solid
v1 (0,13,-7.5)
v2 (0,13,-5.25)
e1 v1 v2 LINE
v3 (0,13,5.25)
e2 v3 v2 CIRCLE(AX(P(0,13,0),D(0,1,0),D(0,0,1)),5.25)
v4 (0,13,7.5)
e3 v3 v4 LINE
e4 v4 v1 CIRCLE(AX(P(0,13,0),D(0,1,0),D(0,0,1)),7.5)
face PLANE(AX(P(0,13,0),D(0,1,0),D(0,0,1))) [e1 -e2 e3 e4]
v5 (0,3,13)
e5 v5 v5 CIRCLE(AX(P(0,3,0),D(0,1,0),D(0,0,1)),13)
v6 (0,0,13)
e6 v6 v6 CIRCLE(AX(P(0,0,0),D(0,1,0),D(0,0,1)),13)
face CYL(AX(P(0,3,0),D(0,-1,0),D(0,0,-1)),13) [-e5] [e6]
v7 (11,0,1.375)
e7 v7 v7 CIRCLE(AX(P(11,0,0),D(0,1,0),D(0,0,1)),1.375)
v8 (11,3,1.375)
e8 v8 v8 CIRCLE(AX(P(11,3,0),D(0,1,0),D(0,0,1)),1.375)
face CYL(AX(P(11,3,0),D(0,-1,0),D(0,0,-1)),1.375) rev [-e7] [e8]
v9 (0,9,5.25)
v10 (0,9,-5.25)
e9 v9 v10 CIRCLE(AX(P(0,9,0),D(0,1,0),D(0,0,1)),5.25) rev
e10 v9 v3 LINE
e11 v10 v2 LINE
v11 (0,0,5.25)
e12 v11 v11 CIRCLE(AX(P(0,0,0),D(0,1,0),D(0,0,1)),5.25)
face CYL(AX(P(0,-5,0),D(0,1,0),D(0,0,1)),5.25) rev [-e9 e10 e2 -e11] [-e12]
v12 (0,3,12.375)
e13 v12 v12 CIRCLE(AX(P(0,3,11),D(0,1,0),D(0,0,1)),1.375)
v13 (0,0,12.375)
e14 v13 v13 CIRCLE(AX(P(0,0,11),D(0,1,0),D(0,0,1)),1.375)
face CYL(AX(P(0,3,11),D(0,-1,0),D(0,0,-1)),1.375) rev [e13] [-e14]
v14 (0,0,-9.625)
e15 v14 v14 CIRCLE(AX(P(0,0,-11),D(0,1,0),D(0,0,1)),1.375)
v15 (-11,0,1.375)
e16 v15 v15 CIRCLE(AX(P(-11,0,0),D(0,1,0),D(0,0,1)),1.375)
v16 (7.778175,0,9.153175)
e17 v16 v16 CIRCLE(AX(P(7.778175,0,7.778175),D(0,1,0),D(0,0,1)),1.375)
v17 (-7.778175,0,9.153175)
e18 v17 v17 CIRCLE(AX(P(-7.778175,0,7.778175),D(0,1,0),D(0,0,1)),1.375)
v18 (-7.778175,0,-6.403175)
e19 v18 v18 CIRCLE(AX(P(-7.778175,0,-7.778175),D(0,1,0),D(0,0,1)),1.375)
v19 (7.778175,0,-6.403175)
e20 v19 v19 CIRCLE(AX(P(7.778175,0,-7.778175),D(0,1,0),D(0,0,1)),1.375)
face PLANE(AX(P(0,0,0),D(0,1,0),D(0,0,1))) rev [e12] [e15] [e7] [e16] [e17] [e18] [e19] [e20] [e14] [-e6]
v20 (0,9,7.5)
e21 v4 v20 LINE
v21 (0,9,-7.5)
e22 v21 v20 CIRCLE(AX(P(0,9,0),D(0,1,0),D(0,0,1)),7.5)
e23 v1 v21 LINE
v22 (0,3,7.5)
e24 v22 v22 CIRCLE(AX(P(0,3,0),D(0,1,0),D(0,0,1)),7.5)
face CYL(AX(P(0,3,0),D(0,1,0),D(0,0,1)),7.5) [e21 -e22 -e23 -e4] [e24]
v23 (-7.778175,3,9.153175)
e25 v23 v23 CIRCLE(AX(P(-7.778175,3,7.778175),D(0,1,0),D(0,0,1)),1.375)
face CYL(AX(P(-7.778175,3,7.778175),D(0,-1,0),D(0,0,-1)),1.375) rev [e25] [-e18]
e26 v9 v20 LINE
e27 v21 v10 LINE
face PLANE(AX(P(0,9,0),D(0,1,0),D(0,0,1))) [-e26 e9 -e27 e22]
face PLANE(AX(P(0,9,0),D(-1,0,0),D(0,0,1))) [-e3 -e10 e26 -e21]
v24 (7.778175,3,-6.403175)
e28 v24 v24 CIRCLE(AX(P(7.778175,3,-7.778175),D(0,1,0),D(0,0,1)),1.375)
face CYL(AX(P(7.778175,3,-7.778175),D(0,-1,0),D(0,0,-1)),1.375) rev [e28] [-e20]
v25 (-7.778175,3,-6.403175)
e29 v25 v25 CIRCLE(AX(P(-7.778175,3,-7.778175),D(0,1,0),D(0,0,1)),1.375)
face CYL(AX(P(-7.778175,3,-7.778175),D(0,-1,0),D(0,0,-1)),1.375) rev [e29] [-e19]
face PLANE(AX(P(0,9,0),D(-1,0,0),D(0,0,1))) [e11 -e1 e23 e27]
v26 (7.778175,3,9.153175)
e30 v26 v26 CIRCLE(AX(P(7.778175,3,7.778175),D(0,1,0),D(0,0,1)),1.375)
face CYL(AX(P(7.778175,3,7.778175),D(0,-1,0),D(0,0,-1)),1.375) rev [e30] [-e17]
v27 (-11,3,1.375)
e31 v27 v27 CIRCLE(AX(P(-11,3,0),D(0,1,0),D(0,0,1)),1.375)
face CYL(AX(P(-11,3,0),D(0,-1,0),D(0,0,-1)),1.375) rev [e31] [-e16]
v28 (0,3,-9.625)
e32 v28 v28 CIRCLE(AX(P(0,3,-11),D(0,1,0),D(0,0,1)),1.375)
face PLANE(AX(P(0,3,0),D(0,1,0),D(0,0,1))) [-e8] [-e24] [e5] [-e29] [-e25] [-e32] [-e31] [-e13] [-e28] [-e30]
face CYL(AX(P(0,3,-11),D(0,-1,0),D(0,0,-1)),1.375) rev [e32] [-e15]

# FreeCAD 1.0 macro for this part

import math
import FreeCAD as App
import Part
import Sketcher

V = App.Vector
Q = App.Units.Quantity

doc = App.newDocument("Part")
body = doc.addObject("PartDesign::Body", "Body")

sketch1 = doc.addObject("Sketcher::SketchObject", "Sketch")
body.addObject(sketch1)
sketch1.AttachmentSupport = (doc.XZ_Plane, [""])
sketch1.MapMode = "FlatFace"
sketch1.addGeometry(Part.Circle(V(0, 0, 0), V(0, 0, 1), 13), False)
sketch1.addGeometry(Part.Circle(V(-7.8, -7.8, 0), V(0, 0, 1), 1.4), False)
sketch1.addGeometry(Part.Circle(V(0, -11, 0), V(0, 0, 1), 1.4), False)
sketch1.addGeometry(Part.Circle(V(-11, 0, 0), V(0, 0, 1), 1.4), False)
sketch1.addGeometry(Part.Circle(V(-7.8, 7.8, 0), V(0, 0, 1), 1.4), False)
sketch1.addGeometry(Part.Circle(V(7.8, -7.8, 0), V(0, 0, 1), 1.4), False)
sketch1.addGeometry(Part.Circle(V(11, 0, 0), V(0, 0, 1), 1.4), False)
sketch1.addGeometry(Part.Circle(V(0, 0, 0), V(0, 0, 1), 5), False)
sketch1.addGeometry(Part.Circle(V(0, 11, 0), V(0, 0, 1), 1.4), False)
sketch1.addGeometry(Part.Circle(V(7.8, 7.8, 0), V(0, 0, 1), 1.4), False)
sketch1.addConstraint(Sketcher.Constraint("Coincident", 0, 3, -1, 1))
sketch1.addConstraint(Sketcher.Constraint("Coincident", 7, 3, -1, 1))
sketch1.addConstraint(Sketcher.Constraint("Equal", 1, 2))
sketch1.addConstraint(Sketcher.Constraint("Equal", 2, 3))
sketch1.addConstraint(Sketcher.Constraint("Equal", 3, 4))
sketch1.addConstraint(Sketcher.Constraint("Equal", 4, 5))
sketch1.addConstraint(Sketcher.Constraint("Equal", 5, 6))
sketch1.addConstraint(Sketcher.Constraint("Equal", 6, 8))
sketch1.addConstraint(Sketcher.Constraint("Equal", 8, 9))
sketch1.addConstraint(Sketcher.Constraint("Symmetric", 4, 3, 5, 3, -1, 1))
sketch1.addConstraint(Sketcher.Constraint("Symmetric", 3, 3, 6, 3, -1, 1))
sketch1.addConstraint(Sketcher.Constraint("Symmetric", 2, 3, 8, 3, -1, 1))
sketch1.addConstraint(Sketcher.Constraint("Symmetric", 1, 3, 9, 3, -1, 1))
sketch1.addConstraint(Sketcher.Constraint("Symmetric", 1, 3, 5, 3, -2))
sketch1.addConstraint(Sketcher.Constraint("PointOnObject", 2, 3, -2))
sketch1.addConstraint(Sketcher.Constraint("PointOnObject", 3, 3, -1))
sketch1.addConstraint(Sketcher.Constraint("Diameter", 0, Q("26 mm")))
sketch1.addConstraint(Sketcher.Constraint("Diameter", 7, Q("10 mm")))
sketch1.addConstraint(Sketcher.Constraint("Diameter", 1, Q("2.75 mm")))
sketch1.addConstraint(Sketcher.Constraint("DistanceY", 2, 3, -1, 1, Q("11 mm")))
sketch1.addConstraint(Sketcher.Constraint("DistanceX", 3, 3, -1, 1, Q("11 mm")))
sketch1.addConstraint(Sketcher.Constraint("DistanceY", 1, 3, 4, 3, Q("15.556349 mm")))
sketch1.addConstraint(Sketcher.Constraint("DistanceX", 1, 3, 5, 3, Q("15.556349 mm")))
pad1 = doc.addObject("PartDesign::Pad", "Pad")
body.addObject(pad1)
pad1.Profile = sketch1
pad1.Length = 3
pad1.Reversed = True

sketch2 = doc.addObject("Sketcher::SketchObject", "Sketch001")
body.addObject(sketch2)
sketch2.AttachmentSupport = (doc.XZ_Plane, [""])
sketch2.MapMode = "FlatFace"
sketch2.AttachmentOffset = App.Placement(V(0, 0, -3), App.Rotation())
sketch2.addGeometry(Part.Circle(V(0, 0, 0), V(0, 0, 1), 8), False)
sketch2.addGeometry(Part.Circle(V(0, 0, 0), V(0, 0, 1), 5), False)
sketch2.addConstraint(Sketcher.Constraint("Coincident", 0, 3, -1, 1))
sketch2.addConstraint(Sketcher.Constraint("Coincident", 1, 3, -1, 1))
sketch2.addConstraint(Sketcher.Constraint("Diameter", 0, Q("15 mm")))
sketch2.addConstraint(Sketcher.Constraint("Diameter", 1, Q("10 mm")))
pad2 = doc.addObject("PartDesign::Pad", "Pad001")
body.addObject(pad2)
pad2.Profile = sketch2
pad2.Length = 10
pad2.Reversed = True

sketch3 = doc.addObject("Sketcher::SketchObject", "Sketch002")
body.addObject(sketch3)
sketch3.AttachmentSupport = (doc.XZ_Plane, [""])
sketch3.MapMode = "FlatFace"
sketch3.AttachmentOffset = App.Placement(V(0, 0, -13), App.Rotation())
sketch3.addGeometry(Part.Circle(V(0, 0, 0), V(0, 0, 1), 5), False)
sketch3.addConstraint(Sketcher.Constraint("Coincident", 0, 3, -1, 1))
sketch3.addConstraint(Sketcher.Constraint("Diameter", 0, Q("10.5 mm")))
pocket1 = doc.addObject("PartDesign::Pocket", "Pocket")
body.addObject(pocket1)
pocket1.Profile = sketch3
pocket1.Length = 18
pocket1.Reversed = True

sketch4 = doc.addObject("Sketcher::SketchObject", "Sketch003")
body.addObject(sketch4)
sketch4.AttachmentSupport = (doc.XZ_Plane, [""])
sketch4.MapMode = "FlatFace"
sketch4.AttachmentOffset = App.Placement(V(0, 0, -13), App.Rotation())
sketch4.addGeometry(Part.LineSegment(V(0, -5.2, 0), V(0, -7.5, 0)), False)
sketch4.addGeometry(Part.ArcOfCircle(Part.Circle(V(0, 0, 0), V(0, 0, 1), 7.5), math.radians(90), math.radians(270)), False)
sketch4.addGeometry(Part.LineSegment(V(0, 7.5, 0), V(0, 5.2, 0)), False)
sketch4.addGeometry(Part.ArcOfCircle(Part.Circle(V(0, 0, 0), V(0, 0, 1), 5.2), math.radians(90), math.radians(270)), False)
sketch4.addConstraint(Sketcher.Constraint("Coincident", 0, 2, 1, 2))
sketch4.addConstraint(Sketcher.Constraint("Coincident", 1, 1, 2, 1))
sketch4.addConstraint(Sketcher.Constraint("Coincident", 2, 2, 3, 1))
sketch4.addConstraint(Sketcher.Constraint("Coincident", 3, 2, 0, 1))
sketch4.addConstraint(Sketcher.Constraint("Vertical", 0))
sketch4.addConstraint(Sketcher.Constraint("Vertical", 2))
sketch4.addConstraint(Sketcher.Constraint("Coincident", 1, 3, -1, 1))
sketch4.addConstraint(Sketcher.Constraint("Coincident", 3, 3, -1, 1))
sketch4.addConstraint(Sketcher.Constraint("PointOnObject", 0, 2, -2))
sketch4.addConstraint(Sketcher.Constraint("PointOnObject", 1, 1, -2))
sketch4.addConstraint(Sketcher.Constraint("Radius", 1, Q("7.5 mm")))
sketch4.addConstraint(Sketcher.Constraint("Radius", 3, Q("5.25 mm")))
pocket2 = doc.addObject("PartDesign::Pocket", "Pocket001")
body.addObject(pocket2)
pocket2.Profile = sketch4
pocket2.Length = 4
pocket2.Reversed = True

sketch5 = doc.addObject("Sketcher::SketchObject", "Sketch004")
body.addObject(sketch5)
sketch5.AttachmentSupport = (doc.XZ_Plane, [""])
sketch5.MapMode = "FlatFace"
sketch5.AttachmentOffset = App.Placement(V(0, 0, -3), App.Rotation())
sketch5.addGeometry(Part.Circle(V(0, 0, 0), V(0, 0, 1), 8), False)
sketch5.addGeometry(Part.Circle(V(0, 0, 0), V(0, 0, 1), 7), False)
sketch5.addConstraint(Sketcher.Constraint("Coincident", 0, 3, -1, 1))
sketch5.addConstraint(Sketcher.Constraint("Coincident", 1, 3, -1, 1))
sketch5.addConstraint(Sketcher.Constraint("Diameter", 0, Q("15 mm")))
sketch5.addConstraint(Sketcher.Constraint("Diameter", 1, Q("14.9 mm")))
pocket3 = doc.addObject("PartDesign::Pocket", "Pocket002")
body.addObject(pocket3)
pocket3.Profile = sketch5
pocket3.Length = 10

sketch6 = doc.addObject("Sketcher::SketchObject", "Sketch005")
body.addObject(sketch6)
sketch6.AttachmentSupport = (doc.XZ_Plane, [""])
sketch6.MapMode = "FlatFace"
sketch6.AttachmentOffset = App.Placement(V(0, 0, -9), App.Rotation())
sketch6.addGeometry(Part.Circle(V(0, 0, 0), V(0, 0, 1), 8), False)
sketch6.addGeometry(Part.Circle(V(0, 0, 0), V(0, 0, 1), 5), False)
sketch6.addConstraint(Sketcher.Constraint("Coincident", 0, 3, -1, 1))
sketch6.addConstraint(Sketcher.Constraint("Coincident", 1, 3, -1, 1))
sketch6.addConstraint(Sketcher.Constraint("Diameter", 0, Q("15 mm")))
sketch6.addConstraint(Sketcher.Constraint("Diameter", 1, Q("10.5 mm")))
pad3 = doc.addObject("PartDesign::Pad", "Pad002")
body.addObject(pad3)
pad3.Profile = sketch6
pad3.Length = 6

sketch7 = doc.addObject("Sketcher::SketchObject", "Sketch006")
body.addObject(sketch7)
sketch7.AttachmentSupport = (doc.XZ_Plane, [""])
sketch7.MapMode = "FlatFace"
sketch7.AttachmentOffset = App.Placement(V(0, 0, -9), App.Rotation())
sketch7.addGeometry(Part.ArcOfCircle(Part.Circle(V(0, 0, 0), V(0, 0, 1), 7.5), math.radians(-90), math.radians(0)), False)
sketch7.addGeometry(Part.LineSegment(V(0, -7.5, 0), V(0, -7.45, 0)), False)
sketch7.addGeometry(Part.ArcOfCircle(Part.Circle(V(0, 0, 0), V(0, 0, 1), 7.45), math.radians(-90), math.radians(0)), False)
sketch7.addGeometry(Part.ArcOfCircle(Part.Circle(V(0, 0, 0), V(0, 0, 1), 7.45), math.radians(0), math.radians(90)), False)
sketch7.addGeometry(Part.LineSegment(V(0, 7.45, 0), V(0, 7.5, 0)), False)
sketch7.addGeometry(Part.ArcOfCircle(Part.Circle(V(0, 0, 0), V(0, 0, 1), 7.5), math.radians(0), math.radians(90)), False)
sketch7.addConstraint(Sketcher.Constraint("Coincident", 0, 1, 1, 1))
sketch7.addConstraint(Sketcher.Constraint("Coincident", 1, 2, 2, 1))
sketch7.addConstraint(Sketcher.Constraint("Tangent", 2, 2, 3, 1))
sketch7.addConstraint(Sketcher.Constraint("Coincident", 3, 2, 4, 1))
sketch7.addConstraint(Sketcher.Constraint("Coincident", 4, 2, 5, 2))
sketch7.addConstraint(Sketcher.Constraint("Tangent", 5, 1, 0, 2))
sketch7.addConstraint(Sketcher.Constraint("Vertical", 1))
sketch7.addConstraint(Sketcher.Constraint("Vertical", 4))
sketch7.addConstraint(Sketcher.Constraint("Coincident", 0, 3, -1, 1))
sketch7.addConstraint(Sketcher.Constraint("Coincident", 2, 3, -1, 1))
sketch7.addConstraint(Sketcher.Constraint("Equal", 2, 3))
sketch7.addConstraint(Sketcher.Constraint("Equal", 0, 5))
sketch7.addConstraint(Sketcher.Constraint("PointOnObject", 0, 1, -2))
sketch7.addConstraint(Sketcher.Constraint("PointOnObject", 2, 2, -1))
sketch7.addConstraint(Sketcher.Constraint("PointOnObject", 3, 2, -2))
sketch7.addConstraint(Sketcher.Constraint("PointOnObject", 5, 1, -1))
sketch7.addConstraint(Sketcher.Constraint("Radius", 0, Q("7.5 mm")))
sketch7.addConstraint(Sketcher.Constraint("Radius", 2, Q("7.45 mm")))
pad4 = doc.addObject("PartDesign::Pad", "Pad003")
body.addObject(pad4)
pad4.Profile = sketch7
pad4.Length = 4
pad4.Reversed = True

doc.recompute()
